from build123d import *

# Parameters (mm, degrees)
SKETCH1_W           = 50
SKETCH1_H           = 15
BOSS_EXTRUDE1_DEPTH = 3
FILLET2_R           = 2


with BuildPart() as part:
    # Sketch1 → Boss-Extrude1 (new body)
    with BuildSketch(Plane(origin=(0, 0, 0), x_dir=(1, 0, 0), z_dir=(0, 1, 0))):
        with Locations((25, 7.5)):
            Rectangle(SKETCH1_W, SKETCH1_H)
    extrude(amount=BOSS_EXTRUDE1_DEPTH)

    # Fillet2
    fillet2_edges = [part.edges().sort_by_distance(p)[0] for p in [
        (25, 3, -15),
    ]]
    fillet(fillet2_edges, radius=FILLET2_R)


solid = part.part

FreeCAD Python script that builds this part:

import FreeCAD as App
import Part
import Sketcher

V = App.Vector
Q = App.Units.Quantity


def edges_at(feature, points):
    """Names of the edges that pass closest to the given points."""
    edges = feature.Shape.Edges
    near = lambda p: min(range(len(edges)), key=lambda i: edges[i].distToShape(Part.Vertex(*p))[0])
    return sorted({f"Edge{near(p) + 1}" for p in points})

doc = App.newDocument("Part")
params = doc.addObject("Spreadsheet::Sheet", "Params")
for row, (alias, value) in enumerate([
    ("sketch1_width", "50 mm"),
    ("sketch1_height", "15 mm"),
    ("pad1_length", "3 mm"),
    ("fillet_radius", "2 mm"),
], start=1):
    params.set(f"A{row}", alias)
    params.set(f"B{row}", "=" + value)
    params.setAlias(f"B{row}", alias)

body = doc.addObject("PartDesign::Body", "Body")

# Sketch on XZ plane
sketch1 = doc.addObject("Sketcher::SketchObject", "Sketch")
body.addObject(sketch1)
sketch1.AttachmentSupport = (doc.XZ_Plane, [""])
sketch1.MapMode = "FlatFace"
sketch1.addGeometry([
    Part.LineSegment(V(0, -15, 0), V(0, 0, 0)),
    Part.LineSegment(V(0, 0, 0), V(50, 0, 0)),
    Part.LineSegment(V(50, 0, 0), V(50, -15, 0)),
    Part.LineSegment(V(50, -15, 0), V(0, -15, 0)),
], False)
sketch1.addConstraint([
    Sketcher.Constraint("Coincident", 0, 2, 1, 1),
    Sketcher.Constraint("Coincident", 1, 2, 2, 1),
    Sketcher.Constraint("Coincident", 2, 2, 3, 1),
    Sketcher.Constraint("Coincident", 3, 2, 0, 1),
    Sketcher.Constraint("Vertical", 0),
    Sketcher.Constraint("Horizontal", 1),
    Sketcher.Constraint("Vertical", 2),
    Sketcher.Constraint("Horizontal", 3),
    Sketcher.Constraint("Coincident", 0, 2, -1, 1),
    Sketcher.Constraint("DistanceX", 1, 1, 1, 2, Q("50 mm")),
    Sketcher.Constraint("DistanceY", 0, 1, 0, 2, Q("15 mm")),
])
sketch1.setExpression("Constraints[9]", "Params.sketch1_width")
sketch1.setExpression("Constraints[10]", "Params.sketch1_height")
pad1 = doc.addObject("PartDesign::Pad", "Pad")
body.addObject(pad1)
pad1.Profile = sketch1
pad1.setExpression("Length", "Params.pad1_length")
pad1.Reversed = True
doc.recompute()

fillet = doc.addObject("PartDesign::Fillet", "Fillet")
body.addObject(fillet)
fillet.Base = (pad1, edges_at(pad1, [(25, 3, -15)]))
fillet.setExpression("Radius", "Params.fillet_radius")

doc.recompute()
